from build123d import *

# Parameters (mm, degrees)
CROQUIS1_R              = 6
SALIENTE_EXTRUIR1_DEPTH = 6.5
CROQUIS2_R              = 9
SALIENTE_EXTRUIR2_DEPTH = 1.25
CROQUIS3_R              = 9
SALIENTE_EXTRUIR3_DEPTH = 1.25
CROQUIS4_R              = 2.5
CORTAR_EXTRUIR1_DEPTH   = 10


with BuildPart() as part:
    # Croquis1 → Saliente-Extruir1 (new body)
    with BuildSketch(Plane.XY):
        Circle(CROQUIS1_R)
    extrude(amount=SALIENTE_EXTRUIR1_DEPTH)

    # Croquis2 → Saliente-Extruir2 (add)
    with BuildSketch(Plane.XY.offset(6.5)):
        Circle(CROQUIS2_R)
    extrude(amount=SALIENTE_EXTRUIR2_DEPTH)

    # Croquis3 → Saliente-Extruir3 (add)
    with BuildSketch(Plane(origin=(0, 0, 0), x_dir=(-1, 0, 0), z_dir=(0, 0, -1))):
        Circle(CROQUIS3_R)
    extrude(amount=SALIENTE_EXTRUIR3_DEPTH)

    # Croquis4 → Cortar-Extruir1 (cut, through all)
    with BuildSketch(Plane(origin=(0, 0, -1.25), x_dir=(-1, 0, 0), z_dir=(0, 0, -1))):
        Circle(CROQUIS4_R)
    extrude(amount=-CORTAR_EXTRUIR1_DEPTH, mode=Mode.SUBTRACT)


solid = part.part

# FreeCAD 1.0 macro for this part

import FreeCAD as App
import Part
import Sketcher

doc = App.newDocument("Part")
body = doc.addObject("PartDesign::Body", "Body")

# Sketch on XY plane
sketch1 = body.newObject("Sketcher::SketchObject", "Sketch")
sketch1.AttachmentSupport = (doc.getObject("XY_Plane"), [""])
sketch1.MapMode = "FlatFace"
sketch1.addGeometry(Part.Circle(App.Vector(0, 0, 0), App.Vector(0, 0, 1), 6), False)
sketch1.addConstraint([
    Sketcher.Constraint("Coincident", 0, 3, -1, 1),
    Sketcher.Constraint("Diameter", 0, 12.0),
])
pad1 = body.newObject("PartDesign::Pad", "Pad")
pad1.Profile = sketch1
pad1.Length = 6.5

# Sketch on XY plane
sketch2 = body.newObject("Sketcher::SketchObject", "Sketch001")
sketch2.AttachmentSupport = (doc.getObject("XY_Plane"), [""])
sketch2.MapMode = "FlatFace"
sketch2.AttachmentOffset = App.Placement(App.Vector(0, 0, 6.5), App.Rotation())
sketch2.addGeometry(Part.Circle(App.Vector(0, 0, 0), App.Vector(0, 0, 1), 9), False)
sketch2.addConstraint([
    Sketcher.Constraint("Coincident", 0, 3, -1, 1),
    Sketcher.Constraint("Diameter", 0, 18.0),
])
pad2 = body.newObject("PartDesign::Pad", "Pad001")
pad2.Profile = sketch2
pad2.Length = 1.25

# Sketch on XY plane
sketch3 = body.newObject("Sketcher::SketchObject", "Sketch002")
sketch3.AttachmentSupport = (doc.getObject("XY_Plane"), [""])
sketch3.MapMode = "FlatFace"
sketch3.addGeometry(Part.Circle(App.Vector(0, 0, 0), App.Vector(0, 0, 1), 9), False)
sketch3.addConstraint([
    Sketcher.Constraint("Coincident", 0, 3, -1, 1),
    Sketcher.Constraint("Diameter", 0, 18.0),
])
pad3 = body.newObject("PartDesign::Pad", "Pad002")
pad3.Profile = sketch3
pad3.Length = 1.25
pad3.Reversed = True

# Sketch on XY plane
sketch4 = body.newObject("Sketcher::SketchObject", "Sketch003")
sketch4.AttachmentSupport = (doc.getObject("XY_Plane"), [""])
sketch4.MapMode = "FlatFace"
sketch4.AttachmentOffset = App.Placement(App.Vector(0, 0, -1.25), App.Rotation())
sketch4.addGeometry(Part.Circle(App.Vector(0, 0, 0), App.Vector(0, 0, 1), 2.5), False)
sketch4.addConstraint([
    Sketcher.Constraint("Coincident", 0, 3, -1, 1),
    Sketcher.Constraint("Diameter", 0, 5.0),
])
pocket1 = body.newObject("PartDesign::Pocket", "Pocket")
pocket1.Profile = sketch4
pocket1.Type = "ThroughAll"
pocket1.Reversed = True

doc.recompute()
